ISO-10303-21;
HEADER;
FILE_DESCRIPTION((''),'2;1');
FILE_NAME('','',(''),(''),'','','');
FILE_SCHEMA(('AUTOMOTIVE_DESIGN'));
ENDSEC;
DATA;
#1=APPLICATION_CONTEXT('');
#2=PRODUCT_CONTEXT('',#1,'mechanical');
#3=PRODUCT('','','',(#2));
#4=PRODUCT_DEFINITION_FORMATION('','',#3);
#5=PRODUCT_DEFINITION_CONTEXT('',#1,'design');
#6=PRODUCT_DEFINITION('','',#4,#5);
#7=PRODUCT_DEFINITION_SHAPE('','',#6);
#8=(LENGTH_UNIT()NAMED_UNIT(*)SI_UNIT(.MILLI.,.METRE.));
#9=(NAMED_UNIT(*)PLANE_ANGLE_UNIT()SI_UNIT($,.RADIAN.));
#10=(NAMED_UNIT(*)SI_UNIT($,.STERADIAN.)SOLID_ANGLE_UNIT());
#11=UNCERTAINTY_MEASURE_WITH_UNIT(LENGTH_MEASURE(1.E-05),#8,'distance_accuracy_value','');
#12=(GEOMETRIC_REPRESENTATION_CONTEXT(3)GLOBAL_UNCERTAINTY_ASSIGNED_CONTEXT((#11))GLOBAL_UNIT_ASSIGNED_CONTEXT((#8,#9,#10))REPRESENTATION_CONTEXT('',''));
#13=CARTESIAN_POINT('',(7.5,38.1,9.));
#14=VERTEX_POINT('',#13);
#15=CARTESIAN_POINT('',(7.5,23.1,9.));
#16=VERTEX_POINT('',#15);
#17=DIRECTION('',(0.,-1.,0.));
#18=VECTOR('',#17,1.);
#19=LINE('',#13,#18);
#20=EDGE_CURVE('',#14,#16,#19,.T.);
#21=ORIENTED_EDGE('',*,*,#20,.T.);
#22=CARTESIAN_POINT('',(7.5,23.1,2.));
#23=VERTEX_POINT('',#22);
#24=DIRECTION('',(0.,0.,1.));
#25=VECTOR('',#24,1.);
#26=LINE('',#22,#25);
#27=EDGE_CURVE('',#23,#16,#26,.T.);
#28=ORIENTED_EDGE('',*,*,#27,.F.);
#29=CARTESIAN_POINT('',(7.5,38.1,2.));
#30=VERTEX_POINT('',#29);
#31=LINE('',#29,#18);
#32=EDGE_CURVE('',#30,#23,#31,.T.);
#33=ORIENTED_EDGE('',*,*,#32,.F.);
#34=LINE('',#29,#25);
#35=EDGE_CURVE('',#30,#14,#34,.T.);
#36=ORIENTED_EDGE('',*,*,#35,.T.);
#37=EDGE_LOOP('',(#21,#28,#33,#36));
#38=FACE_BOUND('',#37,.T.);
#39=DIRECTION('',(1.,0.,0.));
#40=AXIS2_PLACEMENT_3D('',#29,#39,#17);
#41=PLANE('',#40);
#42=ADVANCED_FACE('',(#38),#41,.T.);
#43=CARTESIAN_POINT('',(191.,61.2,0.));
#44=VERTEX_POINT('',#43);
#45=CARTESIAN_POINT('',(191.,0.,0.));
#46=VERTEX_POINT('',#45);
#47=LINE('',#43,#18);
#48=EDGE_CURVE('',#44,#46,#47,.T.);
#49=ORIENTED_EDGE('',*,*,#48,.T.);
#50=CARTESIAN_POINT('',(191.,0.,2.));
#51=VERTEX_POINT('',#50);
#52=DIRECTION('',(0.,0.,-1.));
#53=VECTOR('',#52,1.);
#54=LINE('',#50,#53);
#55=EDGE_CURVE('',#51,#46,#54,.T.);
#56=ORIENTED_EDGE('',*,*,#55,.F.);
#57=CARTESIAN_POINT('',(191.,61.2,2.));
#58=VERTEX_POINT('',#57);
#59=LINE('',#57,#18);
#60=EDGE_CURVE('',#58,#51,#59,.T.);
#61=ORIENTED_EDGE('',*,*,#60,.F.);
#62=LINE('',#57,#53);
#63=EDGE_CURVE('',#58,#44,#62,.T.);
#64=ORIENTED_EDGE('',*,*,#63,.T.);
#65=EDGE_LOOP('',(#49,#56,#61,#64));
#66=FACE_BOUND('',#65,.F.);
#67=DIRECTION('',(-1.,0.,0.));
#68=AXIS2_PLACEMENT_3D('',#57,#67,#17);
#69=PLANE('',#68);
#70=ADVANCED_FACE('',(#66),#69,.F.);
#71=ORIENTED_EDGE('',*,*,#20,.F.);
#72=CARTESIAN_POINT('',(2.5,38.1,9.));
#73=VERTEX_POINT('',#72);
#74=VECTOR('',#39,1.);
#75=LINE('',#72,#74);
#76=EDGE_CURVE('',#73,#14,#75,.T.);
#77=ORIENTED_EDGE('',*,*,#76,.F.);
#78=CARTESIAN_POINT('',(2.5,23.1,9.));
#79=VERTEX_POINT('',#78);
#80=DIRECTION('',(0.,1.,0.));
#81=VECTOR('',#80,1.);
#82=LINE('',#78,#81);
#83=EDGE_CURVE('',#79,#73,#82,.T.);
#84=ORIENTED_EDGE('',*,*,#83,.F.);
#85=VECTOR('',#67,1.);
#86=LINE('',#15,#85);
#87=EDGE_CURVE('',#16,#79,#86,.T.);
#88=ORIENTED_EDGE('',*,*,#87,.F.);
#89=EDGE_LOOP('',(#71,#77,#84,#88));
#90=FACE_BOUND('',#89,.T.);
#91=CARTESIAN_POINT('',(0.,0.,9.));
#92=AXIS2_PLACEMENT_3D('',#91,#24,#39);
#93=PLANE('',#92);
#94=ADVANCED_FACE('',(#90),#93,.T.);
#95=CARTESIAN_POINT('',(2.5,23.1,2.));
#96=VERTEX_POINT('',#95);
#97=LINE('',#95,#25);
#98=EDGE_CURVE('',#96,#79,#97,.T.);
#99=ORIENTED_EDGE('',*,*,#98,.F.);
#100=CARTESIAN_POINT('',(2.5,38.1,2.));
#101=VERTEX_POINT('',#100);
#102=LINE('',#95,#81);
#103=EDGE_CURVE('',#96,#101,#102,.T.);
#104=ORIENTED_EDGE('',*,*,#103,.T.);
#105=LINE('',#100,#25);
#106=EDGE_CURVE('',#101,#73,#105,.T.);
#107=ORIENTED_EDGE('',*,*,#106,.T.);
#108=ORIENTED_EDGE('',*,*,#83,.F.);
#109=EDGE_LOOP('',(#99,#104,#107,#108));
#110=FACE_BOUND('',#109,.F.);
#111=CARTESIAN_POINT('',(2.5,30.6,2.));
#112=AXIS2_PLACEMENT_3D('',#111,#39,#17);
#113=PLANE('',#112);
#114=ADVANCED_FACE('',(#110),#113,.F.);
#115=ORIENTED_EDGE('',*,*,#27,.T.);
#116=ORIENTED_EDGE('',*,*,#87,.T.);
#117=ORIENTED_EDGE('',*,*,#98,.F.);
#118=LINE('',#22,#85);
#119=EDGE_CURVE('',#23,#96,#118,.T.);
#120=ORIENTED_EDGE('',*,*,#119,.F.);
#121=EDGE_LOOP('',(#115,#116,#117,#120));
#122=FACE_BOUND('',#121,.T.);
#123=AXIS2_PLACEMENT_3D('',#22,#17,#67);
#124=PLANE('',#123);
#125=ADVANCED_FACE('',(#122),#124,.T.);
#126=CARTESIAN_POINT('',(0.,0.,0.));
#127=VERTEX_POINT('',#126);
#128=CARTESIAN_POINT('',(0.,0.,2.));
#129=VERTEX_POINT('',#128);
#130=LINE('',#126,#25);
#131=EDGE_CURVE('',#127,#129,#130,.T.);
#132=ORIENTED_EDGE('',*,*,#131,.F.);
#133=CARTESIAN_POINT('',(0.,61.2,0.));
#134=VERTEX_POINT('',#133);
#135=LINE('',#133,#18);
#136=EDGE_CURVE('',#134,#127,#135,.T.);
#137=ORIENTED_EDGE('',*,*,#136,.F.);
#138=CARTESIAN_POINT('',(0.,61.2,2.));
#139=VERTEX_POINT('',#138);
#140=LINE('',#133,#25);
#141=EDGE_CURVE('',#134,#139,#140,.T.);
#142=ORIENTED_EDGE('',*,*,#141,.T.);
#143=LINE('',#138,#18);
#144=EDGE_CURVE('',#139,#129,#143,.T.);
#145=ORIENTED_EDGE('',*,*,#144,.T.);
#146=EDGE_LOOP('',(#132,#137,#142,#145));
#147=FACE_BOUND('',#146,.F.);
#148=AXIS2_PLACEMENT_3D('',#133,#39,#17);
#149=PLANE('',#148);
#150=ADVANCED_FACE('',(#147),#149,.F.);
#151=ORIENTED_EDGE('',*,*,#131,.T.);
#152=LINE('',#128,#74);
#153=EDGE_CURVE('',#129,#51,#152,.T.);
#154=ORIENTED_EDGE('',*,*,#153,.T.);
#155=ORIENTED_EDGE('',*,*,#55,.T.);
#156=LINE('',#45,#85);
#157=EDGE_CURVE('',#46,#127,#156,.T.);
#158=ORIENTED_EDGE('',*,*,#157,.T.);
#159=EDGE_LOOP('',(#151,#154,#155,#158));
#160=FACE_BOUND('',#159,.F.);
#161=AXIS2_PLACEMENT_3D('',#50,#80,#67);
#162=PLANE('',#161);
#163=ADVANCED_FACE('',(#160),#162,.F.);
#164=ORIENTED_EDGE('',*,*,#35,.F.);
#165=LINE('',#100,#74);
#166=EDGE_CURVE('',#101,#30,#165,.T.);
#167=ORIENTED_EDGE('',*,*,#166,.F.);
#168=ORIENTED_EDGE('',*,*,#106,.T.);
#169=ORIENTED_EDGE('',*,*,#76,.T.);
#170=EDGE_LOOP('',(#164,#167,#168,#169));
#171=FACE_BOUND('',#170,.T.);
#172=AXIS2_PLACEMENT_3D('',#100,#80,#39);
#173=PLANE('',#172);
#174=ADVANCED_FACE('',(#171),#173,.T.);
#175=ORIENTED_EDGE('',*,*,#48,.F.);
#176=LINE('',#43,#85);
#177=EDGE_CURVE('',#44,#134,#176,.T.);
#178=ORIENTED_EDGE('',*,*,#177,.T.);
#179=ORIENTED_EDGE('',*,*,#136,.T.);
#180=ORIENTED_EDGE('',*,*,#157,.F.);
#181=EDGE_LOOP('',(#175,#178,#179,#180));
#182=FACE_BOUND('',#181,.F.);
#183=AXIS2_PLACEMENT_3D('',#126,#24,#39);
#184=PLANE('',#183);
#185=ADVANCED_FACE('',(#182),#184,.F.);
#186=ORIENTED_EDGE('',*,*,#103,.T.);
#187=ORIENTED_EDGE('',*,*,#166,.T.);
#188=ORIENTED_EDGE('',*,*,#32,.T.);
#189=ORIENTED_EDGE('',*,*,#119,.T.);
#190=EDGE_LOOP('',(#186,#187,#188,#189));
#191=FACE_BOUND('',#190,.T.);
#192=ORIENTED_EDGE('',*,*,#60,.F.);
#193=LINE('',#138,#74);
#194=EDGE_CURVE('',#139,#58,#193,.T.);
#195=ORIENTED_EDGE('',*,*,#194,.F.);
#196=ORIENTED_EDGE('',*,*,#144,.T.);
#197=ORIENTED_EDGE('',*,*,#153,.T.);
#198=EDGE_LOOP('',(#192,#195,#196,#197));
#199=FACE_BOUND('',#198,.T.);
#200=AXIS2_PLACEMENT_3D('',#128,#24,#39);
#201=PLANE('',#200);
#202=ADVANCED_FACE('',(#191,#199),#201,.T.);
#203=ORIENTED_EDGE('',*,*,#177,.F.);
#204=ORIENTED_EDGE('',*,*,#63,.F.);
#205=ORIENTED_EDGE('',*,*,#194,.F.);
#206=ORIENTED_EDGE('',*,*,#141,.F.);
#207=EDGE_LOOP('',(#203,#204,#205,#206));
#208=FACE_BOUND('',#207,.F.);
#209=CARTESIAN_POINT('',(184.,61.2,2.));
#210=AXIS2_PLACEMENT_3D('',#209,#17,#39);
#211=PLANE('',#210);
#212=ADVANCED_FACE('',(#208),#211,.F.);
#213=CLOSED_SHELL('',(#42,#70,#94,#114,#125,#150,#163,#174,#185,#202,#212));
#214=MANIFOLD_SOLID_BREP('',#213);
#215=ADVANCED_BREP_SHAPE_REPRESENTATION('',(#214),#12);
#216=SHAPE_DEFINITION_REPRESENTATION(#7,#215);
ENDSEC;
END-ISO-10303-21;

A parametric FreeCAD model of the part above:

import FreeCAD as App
import Part
import Sketcher

V = App.Vector

doc = App.newDocument("Part")
body = doc.addObject("PartDesign::Body", "Body")

sketch1 = doc.addObject("Sketcher::SketchObject", "Sketch")
body.addObject(sketch1)
sketch1.AttachmentSupport = (doc.XY_Plane, [""])
sketch1.MapMode = "FlatFace"
sketch1.addGeometry([
    Part.LineSegment(V(0, 61.2, 0), V(0, 0, 0)),
    Part.LineSegment(V(0, 0, 0), V(184, 0, 0)),
    Part.LineSegment(V(184, 0, 0), V(184, 61.2, 0)),
    Part.LineSegment(V(184, 61.2, 0), V(0, 61.2, 0)),
], False)
sketch1.addConstraint([
    Sketcher.Constraint("Coincident", 0, 2, 1, 1),
    Sketcher.Constraint("Coincident", 1, 2, 2, 1),
    Sketcher.Constraint("Coincident", 2, 2, 3, 1),
    Sketcher.Constraint("Coincident", 3, 2, 0, 1),
    Sketcher.Constraint("Vertical", 0),
    Sketcher.Constraint("Horizontal", 1),
    Sketcher.Constraint("Vertical", 2),
    Sketcher.Constraint("Horizontal", 3),
    Sketcher.Constraint("Coincident", 0, 2, -1, 1),
    Sketcher.Constraint("DistanceX", 1, 1, 1, 2, 184.0),
    Sketcher.Constraint("DistanceY", 0, 2, 0, 1, 61.2),
])
pad1 = doc.addObject("PartDesign::Pad", "Pad")
body.addObject(pad1)
pad1.Profile = sketch1
pad1.Length = 2

sketch2 = doc.addObject("Sketcher::SketchObject", "Sketch001")
body.addObject(sketch2)
sketch2.AttachmentSupport = (doc.XY_Plane, [""])
sketch2.MapMode = "FlatFace"
sketch2.AttachmentOffset = App.Placement(V(0, 0, 2), App.Rotation())
sketch2.addGeometry([
    Part.LineSegment(V(2.5, 38.1, 0), V(2.5, 23.1, 0)),
    Part.LineSegment(V(2.5, 23.1, 0), V(7.5, 23.1, 0)),
    Part.LineSegment(V(7.5, 23.1, 0), V(7.5, 38.1, 0)),
    Part.LineSegment(V(7.5, 38.1, 0), V(2.5, 38.1, 0)),
], False)
sketch2.addConstraint([
    Sketcher.Constraint("Coincident", 0, 2, 1, 1),
    Sketcher.Constraint("Coincident", 1, 2, 2, 1),
    Sketcher.Constraint("Coincident", 2, 2, 3, 1),
    Sketcher.Constraint("Coincident", 3, 2, 0, 1),
    Sketcher.Constraint("Vertical", 0),
    Sketcher.Constraint("Horizontal", 1),
    Sketcher.Constraint("Vertical", 2),
    Sketcher.Constraint("Horizontal", 3),
    Sketcher.Constraint("DistanceX", 1, 1, 1, 2, 5.0),
    Sketcher.Constraint("DistanceX", -1, 1, 0, 2, 2.5),
    Sketcher.Constraint("DistanceY", 0, 2, 0, 1, 15.0),
    Sketcher.Constraint("DistanceY", -1, 1, 0, 2, 23.1),
])
pad2 = doc.addObject("PartDesign::Pad", "Pad001")
body.addObject(pad2)
pad2.Profile = sketch2
pad2.Length = 7

sketch3 = doc.addObject("Sketcher::SketchObject", "Sketch002")
body.addObject(sketch3)
sketch3.AttachmentSupport = (doc.XY_Plane, [""])
sketch3.MapMode = "FlatFace"
sketch3.AttachmentOffset = App.Placement(V(0, 0, 2), App.Rotation())
sketch3.addGeometry([
    Part.LineSegment(V(191, 61.2, 0), V(184, 61.2, 0)),
    Part.LineSegment(V(184, 61.2, 0), V(184, 0, 0)),
    Part.LineSegment(V(184, 0, 0), V(191, 0, 0)),
    Part.LineSegment(V(191, 0, 0), V(191, 61.2, 0)),
], False)
sketch3.addConstraint([
    Sketcher.Constraint("Coincident", 0, 2, 1, 1),
    Sketcher.Constraint("Coincident", 1, 2, 2, 1),
    Sketcher.Constraint("Coincident", 2, 2, 3, 1),
    Sketcher.Constraint("Coincident", 3, 2, 0, 1),
    Sketcher.Constraint("Horizontal", 0),
    Sketcher.Constraint("Vertical", 1),
    Sketcher.Constraint("Horizontal", 2),
    Sketcher.Constraint("Vertical", 3),
    Sketcher.Constraint("PointOnObject", 1, 2, -1),
    Sketcher.Constraint("DistanceX", 0, 2, 0, 1, 7.0),
    Sketcher.Constraint("DistanceY", 1, 2, 1, 1, 61.2),
    Sketcher.Constraint("DistanceX", -1, 1, 0, 2, 184.0),
])
pad3 = doc.addObject("PartDesign::Pad", "Pad002")
body.addObject(pad3)
pad3.Profile = sketch3
pad3.Length = 2
pad3.Reversed = True

doc.recompute()
